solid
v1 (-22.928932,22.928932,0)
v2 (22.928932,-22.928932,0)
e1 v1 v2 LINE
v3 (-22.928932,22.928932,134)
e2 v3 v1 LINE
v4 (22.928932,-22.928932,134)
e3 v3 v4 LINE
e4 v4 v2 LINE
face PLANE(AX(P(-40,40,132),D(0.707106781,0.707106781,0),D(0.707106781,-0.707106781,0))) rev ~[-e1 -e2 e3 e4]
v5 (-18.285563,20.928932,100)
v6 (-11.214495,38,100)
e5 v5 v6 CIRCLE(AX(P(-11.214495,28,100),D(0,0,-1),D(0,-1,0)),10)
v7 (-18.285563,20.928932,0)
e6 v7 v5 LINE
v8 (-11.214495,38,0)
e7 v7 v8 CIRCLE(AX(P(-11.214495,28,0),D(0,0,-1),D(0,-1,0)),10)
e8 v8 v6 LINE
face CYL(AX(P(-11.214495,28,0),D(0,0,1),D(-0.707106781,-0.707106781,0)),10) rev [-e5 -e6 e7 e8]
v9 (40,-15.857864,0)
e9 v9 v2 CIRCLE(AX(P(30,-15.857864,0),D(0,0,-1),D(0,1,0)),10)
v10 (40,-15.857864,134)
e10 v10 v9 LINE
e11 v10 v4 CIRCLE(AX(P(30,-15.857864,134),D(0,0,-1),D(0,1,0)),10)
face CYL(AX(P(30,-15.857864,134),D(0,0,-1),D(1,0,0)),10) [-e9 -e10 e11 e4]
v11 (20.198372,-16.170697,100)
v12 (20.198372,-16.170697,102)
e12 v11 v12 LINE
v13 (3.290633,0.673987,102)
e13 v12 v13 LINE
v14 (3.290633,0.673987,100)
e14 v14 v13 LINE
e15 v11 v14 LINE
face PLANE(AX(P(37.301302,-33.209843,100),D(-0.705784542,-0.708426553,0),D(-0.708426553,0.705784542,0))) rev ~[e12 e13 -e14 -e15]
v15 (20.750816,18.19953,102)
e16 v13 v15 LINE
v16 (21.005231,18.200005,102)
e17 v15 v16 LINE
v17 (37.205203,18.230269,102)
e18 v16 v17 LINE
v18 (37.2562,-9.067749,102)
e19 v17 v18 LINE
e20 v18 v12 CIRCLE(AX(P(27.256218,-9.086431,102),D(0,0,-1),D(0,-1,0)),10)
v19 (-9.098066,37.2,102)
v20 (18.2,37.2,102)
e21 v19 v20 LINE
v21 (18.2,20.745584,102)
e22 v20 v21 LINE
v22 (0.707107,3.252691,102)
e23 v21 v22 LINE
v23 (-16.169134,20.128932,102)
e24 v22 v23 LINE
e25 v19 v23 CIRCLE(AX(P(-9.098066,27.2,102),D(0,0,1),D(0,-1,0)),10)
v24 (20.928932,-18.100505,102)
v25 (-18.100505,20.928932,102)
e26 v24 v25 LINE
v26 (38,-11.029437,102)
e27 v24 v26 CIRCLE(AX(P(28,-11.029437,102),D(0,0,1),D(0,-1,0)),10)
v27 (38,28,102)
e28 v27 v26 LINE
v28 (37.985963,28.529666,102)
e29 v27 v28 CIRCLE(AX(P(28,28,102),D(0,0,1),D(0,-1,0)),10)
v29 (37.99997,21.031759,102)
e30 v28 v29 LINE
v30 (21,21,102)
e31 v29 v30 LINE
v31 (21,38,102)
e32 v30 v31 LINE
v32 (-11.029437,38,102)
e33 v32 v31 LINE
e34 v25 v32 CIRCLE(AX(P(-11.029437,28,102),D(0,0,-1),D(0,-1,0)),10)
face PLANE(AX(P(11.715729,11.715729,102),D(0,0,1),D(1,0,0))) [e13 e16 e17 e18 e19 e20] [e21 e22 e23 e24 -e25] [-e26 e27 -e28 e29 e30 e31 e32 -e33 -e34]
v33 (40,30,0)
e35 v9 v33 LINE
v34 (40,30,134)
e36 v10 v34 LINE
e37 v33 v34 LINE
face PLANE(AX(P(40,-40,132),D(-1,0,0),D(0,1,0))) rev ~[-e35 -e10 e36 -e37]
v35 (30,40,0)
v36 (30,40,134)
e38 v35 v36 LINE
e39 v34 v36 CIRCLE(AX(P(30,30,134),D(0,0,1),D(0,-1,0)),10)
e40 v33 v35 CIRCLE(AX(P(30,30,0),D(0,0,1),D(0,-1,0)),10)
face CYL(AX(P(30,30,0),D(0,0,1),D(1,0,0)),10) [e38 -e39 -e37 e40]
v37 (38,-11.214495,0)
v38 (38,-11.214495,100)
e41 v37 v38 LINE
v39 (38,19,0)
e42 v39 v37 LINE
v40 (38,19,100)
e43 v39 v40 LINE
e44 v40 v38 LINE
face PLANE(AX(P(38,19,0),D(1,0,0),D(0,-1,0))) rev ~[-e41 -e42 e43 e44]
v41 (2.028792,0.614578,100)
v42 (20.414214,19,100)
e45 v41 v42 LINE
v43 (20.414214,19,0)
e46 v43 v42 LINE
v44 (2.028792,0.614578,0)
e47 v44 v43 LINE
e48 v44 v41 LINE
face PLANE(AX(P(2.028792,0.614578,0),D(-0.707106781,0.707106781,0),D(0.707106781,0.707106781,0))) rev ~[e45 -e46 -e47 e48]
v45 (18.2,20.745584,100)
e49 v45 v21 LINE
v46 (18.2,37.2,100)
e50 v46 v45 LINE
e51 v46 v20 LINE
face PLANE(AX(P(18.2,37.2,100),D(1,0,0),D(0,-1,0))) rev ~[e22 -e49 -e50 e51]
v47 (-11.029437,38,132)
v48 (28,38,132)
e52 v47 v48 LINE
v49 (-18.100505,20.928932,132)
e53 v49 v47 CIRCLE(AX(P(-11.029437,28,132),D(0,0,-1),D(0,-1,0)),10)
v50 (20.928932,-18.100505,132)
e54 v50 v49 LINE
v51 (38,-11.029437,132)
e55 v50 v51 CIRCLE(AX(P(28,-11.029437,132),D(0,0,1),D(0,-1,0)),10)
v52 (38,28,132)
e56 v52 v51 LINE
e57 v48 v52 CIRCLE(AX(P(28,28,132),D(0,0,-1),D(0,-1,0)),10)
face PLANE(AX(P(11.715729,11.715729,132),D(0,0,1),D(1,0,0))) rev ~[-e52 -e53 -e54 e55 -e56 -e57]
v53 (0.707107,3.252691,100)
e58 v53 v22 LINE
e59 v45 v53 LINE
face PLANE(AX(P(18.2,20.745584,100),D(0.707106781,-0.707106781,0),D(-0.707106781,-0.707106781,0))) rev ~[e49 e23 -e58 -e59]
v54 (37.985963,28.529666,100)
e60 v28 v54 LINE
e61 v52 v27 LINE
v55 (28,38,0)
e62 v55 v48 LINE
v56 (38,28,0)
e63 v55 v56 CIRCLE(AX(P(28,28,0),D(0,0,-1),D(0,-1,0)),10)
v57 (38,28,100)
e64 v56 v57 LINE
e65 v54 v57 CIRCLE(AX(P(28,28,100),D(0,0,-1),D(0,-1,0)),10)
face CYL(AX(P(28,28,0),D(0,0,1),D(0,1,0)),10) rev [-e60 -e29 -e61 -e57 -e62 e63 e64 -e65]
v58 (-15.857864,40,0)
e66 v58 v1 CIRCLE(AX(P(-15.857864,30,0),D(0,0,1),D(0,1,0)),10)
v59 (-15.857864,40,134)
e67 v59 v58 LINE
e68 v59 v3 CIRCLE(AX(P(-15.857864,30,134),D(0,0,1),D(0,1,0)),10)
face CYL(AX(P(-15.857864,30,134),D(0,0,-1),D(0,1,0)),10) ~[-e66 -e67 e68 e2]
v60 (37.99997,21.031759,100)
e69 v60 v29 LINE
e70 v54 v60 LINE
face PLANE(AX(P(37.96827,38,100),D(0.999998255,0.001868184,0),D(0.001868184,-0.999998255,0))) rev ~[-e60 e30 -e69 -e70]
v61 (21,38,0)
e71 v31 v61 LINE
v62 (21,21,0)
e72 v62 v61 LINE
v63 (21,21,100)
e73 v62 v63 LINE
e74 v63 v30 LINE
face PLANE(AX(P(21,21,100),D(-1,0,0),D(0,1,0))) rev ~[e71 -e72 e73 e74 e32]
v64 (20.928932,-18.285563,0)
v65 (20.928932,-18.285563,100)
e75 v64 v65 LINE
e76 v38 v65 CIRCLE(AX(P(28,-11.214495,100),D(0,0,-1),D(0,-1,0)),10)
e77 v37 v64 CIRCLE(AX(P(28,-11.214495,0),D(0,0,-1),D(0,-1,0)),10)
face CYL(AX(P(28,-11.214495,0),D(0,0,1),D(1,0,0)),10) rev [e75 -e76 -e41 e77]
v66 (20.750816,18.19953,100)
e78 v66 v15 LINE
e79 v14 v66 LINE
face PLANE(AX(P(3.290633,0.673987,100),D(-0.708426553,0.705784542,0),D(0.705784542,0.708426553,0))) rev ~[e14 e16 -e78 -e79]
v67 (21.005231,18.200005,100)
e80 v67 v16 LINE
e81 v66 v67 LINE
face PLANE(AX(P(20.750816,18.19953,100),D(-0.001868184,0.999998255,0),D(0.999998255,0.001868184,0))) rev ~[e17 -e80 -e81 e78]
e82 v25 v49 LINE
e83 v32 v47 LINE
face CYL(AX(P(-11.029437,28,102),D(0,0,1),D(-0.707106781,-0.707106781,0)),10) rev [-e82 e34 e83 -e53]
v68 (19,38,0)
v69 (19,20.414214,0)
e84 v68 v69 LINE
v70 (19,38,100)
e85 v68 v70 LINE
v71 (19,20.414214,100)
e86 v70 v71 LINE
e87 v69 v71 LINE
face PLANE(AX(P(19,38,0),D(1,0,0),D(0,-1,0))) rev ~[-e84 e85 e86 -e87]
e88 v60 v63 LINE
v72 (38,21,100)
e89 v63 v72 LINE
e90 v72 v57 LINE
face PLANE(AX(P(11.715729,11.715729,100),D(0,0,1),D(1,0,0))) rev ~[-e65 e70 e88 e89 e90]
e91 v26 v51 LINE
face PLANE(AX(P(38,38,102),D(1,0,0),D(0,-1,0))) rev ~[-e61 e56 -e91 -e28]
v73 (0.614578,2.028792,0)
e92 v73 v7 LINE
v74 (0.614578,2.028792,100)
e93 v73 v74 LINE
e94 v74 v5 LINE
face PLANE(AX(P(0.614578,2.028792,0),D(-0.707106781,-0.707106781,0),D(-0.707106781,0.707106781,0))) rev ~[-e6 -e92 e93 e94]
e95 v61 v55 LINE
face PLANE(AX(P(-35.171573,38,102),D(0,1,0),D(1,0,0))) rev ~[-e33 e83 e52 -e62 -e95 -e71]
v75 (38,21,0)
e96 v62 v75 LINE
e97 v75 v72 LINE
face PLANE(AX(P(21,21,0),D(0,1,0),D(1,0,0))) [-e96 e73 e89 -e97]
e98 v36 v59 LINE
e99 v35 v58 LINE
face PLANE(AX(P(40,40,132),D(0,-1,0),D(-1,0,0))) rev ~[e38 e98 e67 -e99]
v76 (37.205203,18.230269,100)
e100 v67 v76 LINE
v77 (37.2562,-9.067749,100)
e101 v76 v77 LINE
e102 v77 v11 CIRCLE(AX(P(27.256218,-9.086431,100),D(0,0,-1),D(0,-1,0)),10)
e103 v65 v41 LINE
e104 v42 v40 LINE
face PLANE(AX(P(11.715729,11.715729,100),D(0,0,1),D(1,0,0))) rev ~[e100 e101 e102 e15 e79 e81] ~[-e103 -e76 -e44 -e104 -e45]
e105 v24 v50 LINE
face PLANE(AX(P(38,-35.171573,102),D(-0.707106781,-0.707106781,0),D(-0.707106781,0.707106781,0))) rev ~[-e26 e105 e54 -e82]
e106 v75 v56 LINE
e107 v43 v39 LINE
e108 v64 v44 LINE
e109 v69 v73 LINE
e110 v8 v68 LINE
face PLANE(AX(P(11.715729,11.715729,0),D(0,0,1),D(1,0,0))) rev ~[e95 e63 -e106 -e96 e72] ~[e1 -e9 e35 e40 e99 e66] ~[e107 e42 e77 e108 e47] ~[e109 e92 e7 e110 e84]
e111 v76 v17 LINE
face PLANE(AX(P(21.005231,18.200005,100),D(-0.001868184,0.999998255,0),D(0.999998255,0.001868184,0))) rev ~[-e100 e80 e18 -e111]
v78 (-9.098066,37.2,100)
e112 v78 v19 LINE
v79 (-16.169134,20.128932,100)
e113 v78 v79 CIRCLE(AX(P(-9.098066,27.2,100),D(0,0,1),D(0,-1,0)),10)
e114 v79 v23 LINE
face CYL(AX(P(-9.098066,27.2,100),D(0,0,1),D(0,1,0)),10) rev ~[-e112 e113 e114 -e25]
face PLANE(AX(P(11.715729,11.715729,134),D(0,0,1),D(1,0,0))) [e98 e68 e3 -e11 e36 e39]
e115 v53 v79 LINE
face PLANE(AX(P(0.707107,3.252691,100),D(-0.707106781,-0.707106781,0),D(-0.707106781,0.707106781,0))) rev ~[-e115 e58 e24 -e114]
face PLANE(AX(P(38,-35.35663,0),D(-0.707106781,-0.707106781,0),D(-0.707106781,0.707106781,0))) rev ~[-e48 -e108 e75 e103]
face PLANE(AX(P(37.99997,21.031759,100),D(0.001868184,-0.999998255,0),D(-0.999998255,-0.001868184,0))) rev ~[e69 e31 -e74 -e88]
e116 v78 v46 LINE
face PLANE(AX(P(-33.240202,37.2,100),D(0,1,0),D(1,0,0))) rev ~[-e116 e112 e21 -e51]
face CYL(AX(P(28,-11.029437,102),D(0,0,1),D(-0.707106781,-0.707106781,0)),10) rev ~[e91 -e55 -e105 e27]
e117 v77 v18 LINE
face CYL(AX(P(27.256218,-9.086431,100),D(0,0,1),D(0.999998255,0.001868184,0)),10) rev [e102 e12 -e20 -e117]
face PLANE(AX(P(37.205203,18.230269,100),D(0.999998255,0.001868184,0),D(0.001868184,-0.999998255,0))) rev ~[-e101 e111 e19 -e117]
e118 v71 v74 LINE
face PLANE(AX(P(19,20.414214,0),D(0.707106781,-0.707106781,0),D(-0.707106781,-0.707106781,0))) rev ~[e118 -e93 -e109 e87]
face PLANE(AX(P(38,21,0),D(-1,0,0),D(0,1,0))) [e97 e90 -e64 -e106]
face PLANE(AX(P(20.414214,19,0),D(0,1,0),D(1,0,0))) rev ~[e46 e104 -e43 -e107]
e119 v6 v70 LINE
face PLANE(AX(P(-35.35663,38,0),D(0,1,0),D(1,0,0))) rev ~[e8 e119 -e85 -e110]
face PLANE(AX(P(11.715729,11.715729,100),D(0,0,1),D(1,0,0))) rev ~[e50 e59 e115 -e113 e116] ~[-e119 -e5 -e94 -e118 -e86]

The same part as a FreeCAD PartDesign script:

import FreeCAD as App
import Part
import Sketcher
from FreeCAD import Vector
Q = App.Units.Quantity


def edges_at(feature, points):
    """Names of the edges that pass closest to the given points."""
    edges = feature.Shape.Edges
    near = lambda p: min(range(len(edges)), key=lambda i: edges[i].distToShape(Part.Vertex(*p))[0])
    return sorted({f"Edge{near(p) + 1}" for p in points})

doc = App.newDocument("Part")
params = doc.addObject("Spreadsheet::Sheet", "Params")
for row, (alias, value) in enumerate([
    ("sketch1_width", "80 mm"),
    ("sketch1_width2", "17 mm"),
    ("pad1_length", "100 mm"),
    ("sketch2_width", "80 mm"),
    ("sketch2_height", "17 mm"),
    ("sketch2_length", "17 mm"),
    ("sketch2_length2", "16.2 mm"),
    ("pad2_length", "2 mm"),
    ("sketch3_width", "80 mm"),
    ("pad3_length", "30 mm"),
    ("sketch4_width", "80 mm"),
    ("pad4_length", "2 mm"),
    ("fillet_radius", "10 mm"),
], start=1):
    params.set(f"A{row}", alias)
    params.set(f"B{row}", "=" + value)
    params.setAlias(f"B{row}", alias)

body = doc.addObject("PartDesign::Body", "Body")

# Sketch on XY plane
sketch1 = body.newObject("Sketcher::SketchObject", "Sketch")
sketch1.AttachmentSupport = (doc.getObject("XY_Plane"), [""])
sketch1.MapMode = "FlatFace"
sketch1.addGeometry([
    Part.LineSegment(Vector(40, 40, 0), Vector(-40, 40, 0)),  # 0
    Part.LineSegment(Vector(-40, 40, 0), Vector(40, -40, 0)),  # 1
    Part.LineSegment(Vector(40, -40, 0), Vector(40, 40, 0)),  # 2
    Part.LineSegment(Vector(2, 1, 0), Vector(20, 19, 0)),  # 3
    Part.LineSegment(Vector(20, 19, 0), Vector(38, 19, 0)),  # 4
    Part.LineSegment(Vector(38, 19, 0), Vector(38, -35, 0)),  # 5
    Part.LineSegment(Vector(38, -35, 0), Vector(2, 1, 0)),  # 6
    Part.LineSegment(Vector(19, 38, 0), Vector(19, 20, 0)),  # 7
    Part.LineSegment(Vector(19, 20, 0), Vector(1, 2, 0)),  # 8
    Part.LineSegment(Vector(1, 2, 0), Vector(-35, 38, 0)),  # 9
    Part.LineSegment(Vector(-35, 38, 0), Vector(19, 38, 0)),  # 10
    Part.LineSegment(Vector(38, 21, 0), Vector(21, 21, 0)),  # 11
    Part.LineSegment(Vector(21, 21, 0), Vector(21, 38, 0)),  # 12
    Part.LineSegment(Vector(21, 38, 0), Vector(38, 38, 0)),  # 13
    Part.LineSegment(Vector(38, 38, 0), Vector(38, 21, 0)),  # 14
], False)
sketch1.addConstraint([
    Sketcher.Constraint("Coincident", 0, 2, 1, 1),
    Sketcher.Constraint("Coincident", 1, 2, 2, 1),
    Sketcher.Constraint("Coincident", 2, 2, 0, 1),
    Sketcher.Constraint("Coincident", 3, 2, 4, 1),
    Sketcher.Constraint("Coincident", 4, 2, 5, 1),
    Sketcher.Constraint("Coincident", 5, 2, 6, 1),
    Sketcher.Constraint("Coincident", 6, 2, 3, 1),
    Sketcher.Constraint("Coincident", 7, 2, 8, 1),
    Sketcher.Constraint("Coincident", 8, 2, 9, 1),
    Sketcher.Constraint("Coincident", 9, 2, 10, 1),
    Sketcher.Constraint("Coincident", 10, 2, 7, 1),
    Sketcher.Constraint("Coincident", 11, 2, 12, 1),
    Sketcher.Constraint("Coincident", 12, 2, 13, 1),
    Sketcher.Constraint("Coincident", 13, 2, 14, 1),
    Sketcher.Constraint("Coincident", 14, 2, 11, 1),
    Sketcher.Constraint("Horizontal", 0),
    Sketcher.Constraint("Vertical", 2),
    Sketcher.Constraint("Horizontal", 4),
    Sketcher.Constraint("Vertical", 5),
    Sketcher.Constraint("Vertical", 7),
    Sketcher.Constraint("Horizontal", 10),
    Sketcher.Constraint("Horizontal", 11),
    Sketcher.Constraint("Vertical", 12),
    Sketcher.Constraint("Horizontal", 13),
    Sketcher.Constraint("Vertical", 14),
    Sketcher.Constraint("Symmetric", 0, 2, 1, 2, -1, 1),
    Sketcher.Constraint("Perpendicular", 1, 3),
    Sketcher.Constraint("Perpendicular", 3, 6),
    Sketcher.Constraint("Perpendicular", 6, 8),
    Sketcher.Constraint("Perpendicular", 8, 9),
    Sketcher.Constraint("Horizontal", 10, 2, 12, 2),
    Sketcher.Constraint("Vertical", 5, 2, 13, 2),
    Sketcher.Constraint("Equal", 0, 2),
    Sketcher.Constraint("Equal", 10, 5),
    Sketcher.Constraint("Equal", 4, 7),
    Sketcher.Constraint("Equal", 13, 12),
    Sketcher.Constraint("DistanceX", 0, 2, 0, 1, Q("80 mm")),
    Sketcher.Constraint("DistanceX", 11, 2, 11, 1, Q("17 mm")),
    Sketcher.Constraint("DistanceY", -1, 1, 3, 2, Q("19 mm")),
    Sketcher.Constraint("DistanceX", -1, 1, 4, 2, Q("38 mm")),
    Sketcher.Constraint("DistanceX", -1, 1, 7, 2, Q("19 mm")),
    Sketcher.Constraint("DistanceY", -1, 1, 9, 2, Q("38 mm")),
    Sketcher.Constraint("DistanceX", 10, 1, 10, 2, Q("54.35663 mm")),
    Sketcher.Constraint("Distance", 6, Q("50.870971 mm")),
])
sketch1.setExpression("Constraints[36]", "Params.sketch1_width")
sketch1.setExpression("Constraints[37]", "Params.sketch1_width2")
pad1 = body.newObject("PartDesign::Pad", "Pad")
pad1.Profile = sketch1
pad1.setExpression("Length", "Params.pad1_length")

# Sketch on XY plane
sketch2 = body.newObject("Sketcher::SketchObject", "Sketch001")
sketch2.AttachmentSupport = (doc.getObject("XY_Plane"), [""])
sketch2.MapMode = "FlatFace"
sketch2.AttachmentOffset = App.Placement(Vector(0, 0, 100), App.Rotation())
sketch2.addGeometry([
    Part.LineSegment(Vector(40, 40, 0), Vector(-40, 40, 0)),  # 0
    Part.LineSegment(Vector(-40, 40, 0), Vector(40, -40, 0)),  # 1
    Part.LineSegment(Vector(40, -40, 0), Vector(40, 40, 0)),  # 2
    Part.LineSegment(Vector(20.75, 18.2, 0), Vector(21.01, 18.2, 0)),  # 3
    Part.LineSegment(Vector(21.01, 18.2, 0), Vector(37.21, 18.23, 0)),  # 4
    Part.LineSegment(Vector(37.21, 18.23, 0), Vector(37.3, -33.21, 0)),  # 5
    Part.LineSegment(Vector(37.3, -33.21, 0), Vector(3.29, 0.67, 0)),  # 6
    Part.LineSegment(Vector(3.29, 0.67, 0), Vector(20.75, 18.2, 0)),  # 7
    Part.LineSegment(Vector(18.2, 20.75, 0), Vector(0.71, 3.25, 0)),  # 8
    Part.LineSegment(Vector(0.71, 3.25, 0), Vector(-33.24, 37.2, 0)),  # 9
    Part.LineSegment(Vector(-33.24, 37.2, 0), Vector(18.2, 37.2, 0)),  # 10
    Part.LineSegment(Vector(18.2, 37.2, 0), Vector(18.2, 20.75, 0)),  # 11
    Part.LineSegment(Vector(37.97, 38, 0), Vector(38, 21.03, 0)),  # 12
    Part.LineSegment(Vector(38, 21.03, 0), Vector(21, 21, 0)),  # 13
    Part.LineSegment(Vector(21, 21, 0), Vector(21, 38, 0)),  # 14
    Part.LineSegment(Vector(21, 38, 0), Vector(37.97, 38, 0)),  # 15
], False)
sketch2.addConstraint([
    Sketcher.Constraint("Coincident", 0, 2, 1, 1),
    Sketcher.Constraint("Coincident", 1, 2, 2, 1),
    Sketcher.Constraint("Coincident", 2, 2, 0, 1),
    Sketcher.Constraint("Coincident", 3, 2, 4, 1),
    Sketcher.Constraint("Coincident", 4, 2, 5, 1),
    Sketcher.Constraint("Coincident", 5, 2, 6, 1),
    Sketcher.Constraint("Coincident", 6, 2, 7, 1),
    Sketcher.Constraint("Coincident", 7, 2, 3, 1),
    Sketcher.Constraint("Coincident", 8, 2, 9, 1),
    Sketcher.Constraint("Coincident", 9, 2, 10, 1),
    Sketcher.Constraint("Coincident", 10, 2, 11, 1),
    Sketcher.Constraint("Coincident", 11, 2, 8, 1),
    Sketcher.Constraint("Coincident", 12, 2, 13, 1),
    Sketcher.Constraint("Coincident", 13, 2, 14, 1),
    Sketcher.Constraint("Coincident", 14, 2, 15, 1),
    Sketcher.Constraint("Coincident", 15, 2, 12, 1),
    Sketcher.Constraint("Horizontal", 0),
    Sketcher.Constraint("Vertical", 2),
    Sketcher.Constraint("Horizontal", 10),
    Sketcher.Constraint("Vertical", 11),
    Sketcher.Constraint("Vertical", 14),
    Sketcher.Constraint("Horizontal", 15),
    Sketcher.Constraint("Symmetric", 0, 2, 1, 2, -1, 1),
    Sketcher.Constraint("Parallel", 3, 4),
    Sketcher.Constraint("Perpendicular", 4, 5),
    Sketcher.Constraint("Perpendicular", 6, 7),
    Sketcher.Constraint("Perpendicular", 1, 8),
    Sketcher.Constraint("Perpendicular", 8, 9),
    Sketcher.Constraint("Parallel", 5, 12),
    Sketcher.Constraint("Perpendicular", 12, 13),
    Sketcher.Constraint("Equal", 0, 2),
    Sketcher.Constraint("Equal", 7, 8),
    Sketcher.Constraint("Equal", 6, 9),
    Sketcher.Constraint("DistanceX", 0, 2, 0, 1, Q("80 mm")),
    Sketcher.Constraint("DistanceY", 14, 1, 14, 2, Q("17 mm")),
    Sketcher.Constraint("Distance", 13, Q("17 mm")),
    Sketcher.Constraint("DistanceX", -1, 1, 13, 2, Q("21 mm")),
    Sketcher.Constraint("DistanceY", -1, 1, 13, 2, Q("21 mm")),
    Sketcher.Constraint("Distance", 4, Q("16.2 mm")),
    Sketcher.Constraint("DistanceY", -1, 1, 9, 2, Q("37.2 mm")),
    Sketcher.Constraint("DistanceX", -1, 1, 10, 2, Q("18.2 mm")),
    Sketcher.Constraint("DistanceX", 15, 1, 15, 2, Q("16.96827 mm")),
    Sketcher.Constraint("DistanceX", 10, 1, 10, 2, Q("51.440202 mm")),
    Sketcher.Constraint("DistanceY", 11, 2, 11, 1, Q("16.454416 mm")),
    Sketcher.Constraint("DistanceX", -1, 1, 3, 2, Q("21.005231 mm")),
    Sketcher.Constraint("DistanceY", -1, 1, 4, 2, Q("18.230269 mm")),
    Sketcher.Constraint("DistanceX", 6, 2, 4, 2, Q("33.91457 mm")),
])
sketch2.setExpression("Constraints[33]", "Params.sketch2_width")
sketch2.setExpression("Constraints[34]", "Params.sketch2_height")
sketch2.setExpression("Constraints[35]", "Params.sketch2_length")
sketch2.setExpression("Constraints[38]", "Params.sketch2_length2")
pad2 = body.newObject("PartDesign::Pad", "Pad001")
pad2.Profile = sketch2
pad2.setExpression("Length", "Params.pad2_length")

# Sketch on XY plane
sketch3 = body.newObject("Sketcher::SketchObject", "Sketch002")
sketch3.AttachmentSupport = (doc.getObject("XY_Plane"), [""])
sketch3.MapMode = "FlatFace"
sketch3.AttachmentOffset = App.Placement(Vector(0, 0, 102), App.Rotation())
sketch3.addGeometry([
    Part.LineSegment(Vector(40, -40, 0), Vector(40, 40, 0)),  # 0
    Part.LineSegment(Vector(40, 40, 0), Vector(-40, 40, 0)),  # 1
    Part.LineSegment(Vector(-40, 40, 0), Vector(40, -40, 0)),  # 2
    Part.LineSegment(Vector(38, -35, 0), Vector(-35, 38, 0)),  # 3
    Part.LineSegment(Vector(-35, 38, 0), Vector(38, 38, 0)),  # 4
    Part.LineSegment(Vector(38, 38, 0), Vector(38, -35, 0)),  # 5
], False)
sketch3.addConstraint([
    Sketcher.Constraint("Coincident", 0, 2, 1, 1),
    Sketcher.Constraint("Coincident", 1, 2, 2, 1),
    Sketcher.Constraint("Coincident", 2, 2, 0, 1),
    Sketcher.Constraint("Coincident", 3, 2, 4, 1),
    Sketcher.Constraint("Coincident", 4, 2, 5, 1),
    Sketcher.Constraint("Coincident", 5, 2, 3, 1),
    Sketcher.Constraint("Vertical", 0),
    Sketcher.Constraint("Horizontal", 1),
    Sketcher.Constraint("Horizontal", 4),
    Sketcher.Constraint("Vertical", 5),
    Sketcher.Constraint("Symmetric", 1, 2, 2, 2, -1, 1),
    Sketcher.Constraint("Parallel", 2, 3),
    Sketcher.Constraint("Equal", 1, 0),
    Sketcher.Constraint("DistanceX", 1, 2, 1, 1, Q("80 mm")),
    Sketcher.Constraint("DistanceY", -1, 1, 3, 2, Q("38 mm")),
    Sketcher.Constraint("DistanceX", -1, 1, 4, 2, Q("38 mm")),
    Sketcher.Constraint("Distance", 3, Q("103.480231 mm")),
])
sketch3.setExpression("Constraints[13]", "Params.sketch3_width")
pad3 = body.newObject("PartDesign::Pad", "Pad002")
pad3.Profile = sketch3
pad3.setExpression("Length", "Params.pad3_length")

# Sketch on XY plane
sketch4 = body.newObject("Sketcher::SketchObject", "Sketch003")
sketch4.AttachmentSupport = (doc.getObject("XY_Plane"), [""])
sketch4.MapMode = "FlatFace"
sketch4.AttachmentOffset = App.Placement(Vector(0, 0, 132), App.Rotation())
sketch4.addGeometry([
    Part.LineSegment(Vector(40, -40, 0), Vector(40, 40, 0)),
    Part.LineSegment(Vector(40, 40, 0), Vector(-40, 40, 0)),
    Part.LineSegment(Vector(-40, 40, 0), Vector(40, -40, 0)),
], False)
sketch4.addConstraint([
    Sketcher.Constraint("Coincident", 0, 2, 1, 1),
    Sketcher.Constraint("Coincident", 1, 2, 2, 1),
    Sketcher.Constraint("Coincident", 2, 2, 0, 1),
    Sketcher.Constraint("Vertical", 0),
    Sketcher.Constraint("Horizontal", 1),
    Sketcher.Constraint("Symmetric", 1, 2, 2, 2, -1, 1),
    Sketcher.Constraint("Equal", 1, 0),
    Sketcher.Constraint("DistanceX", 1, 2, 1, 1, Q("80 mm")),
])
sketch4.setExpression("Constraints[7]", "Params.sketch4_width")
pad4 = body.newObject("PartDesign::Pad", "Pad003")
pad4.Profile = sketch4
pad4.setExpression("Length", "Params.pad4_length")
doc.recompute()

fillet = body.newObject("PartDesign::Fillet", "Fillet")
fillet.Base = (pad4, edges_at(pad4, [
    (-35.357, 38, 50),
    (-33.24, 37.2, 101),
    (-35.172, 38, 117),
    (-40, 40, 67),
    (38, -35.357, 50),
    (40, -40, 67),
    (37.301, -33.21, 101),
    (38, -35.172, 117),
    (38, 38, 50),
    (40, 40, 67),
]))
fillet.setExpression("Radius", "Params.fillet_radius")

doc.recompute()
